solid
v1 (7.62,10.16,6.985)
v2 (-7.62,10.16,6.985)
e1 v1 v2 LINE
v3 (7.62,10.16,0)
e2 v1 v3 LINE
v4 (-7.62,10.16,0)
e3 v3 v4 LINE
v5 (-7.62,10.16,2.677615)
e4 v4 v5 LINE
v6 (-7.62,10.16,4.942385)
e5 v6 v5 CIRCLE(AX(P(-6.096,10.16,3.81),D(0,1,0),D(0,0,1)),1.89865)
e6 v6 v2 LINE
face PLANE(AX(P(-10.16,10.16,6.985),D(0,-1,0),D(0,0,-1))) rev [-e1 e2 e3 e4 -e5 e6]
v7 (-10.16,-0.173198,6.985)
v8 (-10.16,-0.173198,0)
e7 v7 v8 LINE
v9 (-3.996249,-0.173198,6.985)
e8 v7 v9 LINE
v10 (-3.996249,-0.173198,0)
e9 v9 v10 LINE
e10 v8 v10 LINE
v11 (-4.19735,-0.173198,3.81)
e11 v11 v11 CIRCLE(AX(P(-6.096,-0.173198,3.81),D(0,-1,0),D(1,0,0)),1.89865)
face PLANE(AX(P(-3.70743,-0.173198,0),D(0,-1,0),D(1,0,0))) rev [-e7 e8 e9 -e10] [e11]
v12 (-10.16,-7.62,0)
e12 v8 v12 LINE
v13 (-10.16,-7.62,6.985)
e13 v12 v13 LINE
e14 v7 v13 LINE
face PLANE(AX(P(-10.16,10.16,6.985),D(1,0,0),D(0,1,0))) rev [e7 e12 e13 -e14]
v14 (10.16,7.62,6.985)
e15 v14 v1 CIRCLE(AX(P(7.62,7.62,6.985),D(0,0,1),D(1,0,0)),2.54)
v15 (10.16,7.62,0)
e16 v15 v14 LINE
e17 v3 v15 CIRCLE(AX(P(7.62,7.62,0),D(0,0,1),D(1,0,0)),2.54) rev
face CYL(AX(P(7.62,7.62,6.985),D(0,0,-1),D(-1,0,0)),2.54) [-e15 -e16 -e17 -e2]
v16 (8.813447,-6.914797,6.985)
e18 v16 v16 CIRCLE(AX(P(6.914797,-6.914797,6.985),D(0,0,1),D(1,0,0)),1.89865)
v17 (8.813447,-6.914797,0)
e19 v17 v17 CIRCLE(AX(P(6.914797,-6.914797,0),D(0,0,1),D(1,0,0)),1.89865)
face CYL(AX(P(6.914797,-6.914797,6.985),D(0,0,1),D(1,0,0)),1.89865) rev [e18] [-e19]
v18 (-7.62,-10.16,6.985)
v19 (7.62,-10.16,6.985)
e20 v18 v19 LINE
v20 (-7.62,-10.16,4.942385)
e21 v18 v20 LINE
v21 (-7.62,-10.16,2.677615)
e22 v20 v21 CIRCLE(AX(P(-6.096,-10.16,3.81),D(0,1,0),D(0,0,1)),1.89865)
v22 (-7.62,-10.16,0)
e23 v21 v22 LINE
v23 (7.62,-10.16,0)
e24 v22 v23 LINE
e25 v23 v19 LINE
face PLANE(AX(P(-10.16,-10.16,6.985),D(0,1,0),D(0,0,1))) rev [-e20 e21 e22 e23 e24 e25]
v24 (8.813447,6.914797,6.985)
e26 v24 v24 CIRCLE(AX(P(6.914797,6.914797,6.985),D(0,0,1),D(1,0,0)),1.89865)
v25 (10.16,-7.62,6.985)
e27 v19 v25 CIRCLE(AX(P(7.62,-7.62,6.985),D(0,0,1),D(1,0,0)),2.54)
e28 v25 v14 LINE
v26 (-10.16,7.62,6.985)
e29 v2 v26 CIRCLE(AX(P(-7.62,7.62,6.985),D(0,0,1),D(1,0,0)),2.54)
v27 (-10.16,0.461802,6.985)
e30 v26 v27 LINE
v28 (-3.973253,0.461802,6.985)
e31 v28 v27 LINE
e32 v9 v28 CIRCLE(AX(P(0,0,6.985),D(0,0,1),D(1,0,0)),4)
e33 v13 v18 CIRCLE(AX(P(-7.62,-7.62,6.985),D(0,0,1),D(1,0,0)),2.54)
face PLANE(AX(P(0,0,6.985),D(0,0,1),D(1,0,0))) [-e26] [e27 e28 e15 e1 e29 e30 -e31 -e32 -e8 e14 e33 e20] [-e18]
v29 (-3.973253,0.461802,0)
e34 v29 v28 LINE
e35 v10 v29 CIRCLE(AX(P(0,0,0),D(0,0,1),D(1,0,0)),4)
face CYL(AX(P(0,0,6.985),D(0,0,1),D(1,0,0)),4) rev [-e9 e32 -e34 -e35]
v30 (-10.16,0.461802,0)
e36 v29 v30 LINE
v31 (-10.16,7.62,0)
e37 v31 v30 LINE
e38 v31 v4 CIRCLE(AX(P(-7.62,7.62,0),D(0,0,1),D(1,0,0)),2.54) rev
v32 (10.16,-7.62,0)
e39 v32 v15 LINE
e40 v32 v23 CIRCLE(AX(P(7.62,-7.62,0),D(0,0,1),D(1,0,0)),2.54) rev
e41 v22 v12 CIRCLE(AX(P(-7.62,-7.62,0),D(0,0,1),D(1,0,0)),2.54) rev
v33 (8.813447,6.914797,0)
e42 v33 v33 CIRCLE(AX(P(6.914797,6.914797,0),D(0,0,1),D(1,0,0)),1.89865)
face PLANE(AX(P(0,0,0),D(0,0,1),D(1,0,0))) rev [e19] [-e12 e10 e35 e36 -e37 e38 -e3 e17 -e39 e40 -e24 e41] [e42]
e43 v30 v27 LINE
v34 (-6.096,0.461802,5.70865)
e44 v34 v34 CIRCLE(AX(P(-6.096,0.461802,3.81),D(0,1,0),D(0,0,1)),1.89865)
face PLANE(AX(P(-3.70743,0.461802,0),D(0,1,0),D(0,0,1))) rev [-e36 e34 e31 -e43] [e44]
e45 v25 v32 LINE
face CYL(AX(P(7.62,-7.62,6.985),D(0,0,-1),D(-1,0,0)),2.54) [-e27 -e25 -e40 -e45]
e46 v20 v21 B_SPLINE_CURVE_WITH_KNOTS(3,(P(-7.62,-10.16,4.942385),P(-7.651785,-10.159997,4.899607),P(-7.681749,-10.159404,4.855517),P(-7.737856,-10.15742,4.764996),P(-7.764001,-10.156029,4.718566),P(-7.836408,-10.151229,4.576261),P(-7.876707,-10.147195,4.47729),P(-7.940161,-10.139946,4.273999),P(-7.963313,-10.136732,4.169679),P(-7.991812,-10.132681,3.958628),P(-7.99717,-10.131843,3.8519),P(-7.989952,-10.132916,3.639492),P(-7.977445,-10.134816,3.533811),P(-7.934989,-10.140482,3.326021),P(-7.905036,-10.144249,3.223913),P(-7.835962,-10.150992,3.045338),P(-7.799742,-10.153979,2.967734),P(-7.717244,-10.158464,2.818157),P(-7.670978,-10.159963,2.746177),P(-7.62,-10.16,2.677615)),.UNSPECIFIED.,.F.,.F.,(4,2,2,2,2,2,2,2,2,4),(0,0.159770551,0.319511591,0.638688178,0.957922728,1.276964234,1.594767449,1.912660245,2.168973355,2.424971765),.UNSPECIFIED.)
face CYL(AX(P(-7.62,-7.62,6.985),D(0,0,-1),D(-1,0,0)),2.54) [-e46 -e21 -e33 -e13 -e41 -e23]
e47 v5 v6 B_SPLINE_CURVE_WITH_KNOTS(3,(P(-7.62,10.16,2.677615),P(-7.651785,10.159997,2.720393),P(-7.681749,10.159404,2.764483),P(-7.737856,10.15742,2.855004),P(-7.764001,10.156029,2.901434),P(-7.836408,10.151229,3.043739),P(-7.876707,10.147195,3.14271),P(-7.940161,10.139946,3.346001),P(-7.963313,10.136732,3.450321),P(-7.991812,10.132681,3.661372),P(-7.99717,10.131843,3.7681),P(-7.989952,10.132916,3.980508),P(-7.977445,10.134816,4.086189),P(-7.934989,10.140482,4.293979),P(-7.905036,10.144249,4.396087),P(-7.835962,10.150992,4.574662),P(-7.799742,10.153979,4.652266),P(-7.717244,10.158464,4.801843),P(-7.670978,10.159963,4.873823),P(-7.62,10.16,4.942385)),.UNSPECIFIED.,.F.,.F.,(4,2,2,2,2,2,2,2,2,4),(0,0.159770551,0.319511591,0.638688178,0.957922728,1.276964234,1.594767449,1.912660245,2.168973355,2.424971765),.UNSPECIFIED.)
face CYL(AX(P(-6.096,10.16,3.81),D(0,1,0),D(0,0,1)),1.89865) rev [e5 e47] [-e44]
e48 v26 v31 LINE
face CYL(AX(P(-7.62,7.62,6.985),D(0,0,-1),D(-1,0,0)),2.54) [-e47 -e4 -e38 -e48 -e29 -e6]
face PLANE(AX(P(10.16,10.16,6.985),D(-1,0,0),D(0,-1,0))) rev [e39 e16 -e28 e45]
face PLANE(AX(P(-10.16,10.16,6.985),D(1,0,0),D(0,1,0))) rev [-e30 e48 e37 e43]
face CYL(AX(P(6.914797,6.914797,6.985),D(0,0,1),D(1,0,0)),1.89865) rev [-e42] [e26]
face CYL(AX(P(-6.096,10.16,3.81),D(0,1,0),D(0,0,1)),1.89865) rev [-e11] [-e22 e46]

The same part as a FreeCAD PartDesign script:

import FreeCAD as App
import Part
import Sketcher

V = App.Vector
Q = App.Units.Quantity


def edges_at(feature, points):
    """Names of the edges that pass closest to the given points."""
    edges = feature.Shape.Edges
    near = lambda p: min(range(len(edges)), key=lambda i: edges[i].distToShape(Part.Vertex(*p))[0])
    return sorted({f"Edge{near(p) + 1}" for p in points})


def add_polygon(sketch, points):
    """Adds a closed chain of lines whose ends are joined by coincident constraints."""
    first, n = sketch.GeometryCount, len(points)
    for a, b in zip(points, points[1:] + points[:1]):
        sketch.addGeometry(Part.LineSegment(App.Vector(*a, 0), App.Vector(*b, 0)), False)
    for i in range(n):
        sketch.addConstraint(Sketcher.Constraint("Coincident", first + i, 2, first + (i + 1) % n, 1))

doc = App.newDocument("Part")
body = doc.addObject("PartDesign::Body", "Body")

# Sketch on XY plane
sketch1 = body.newObject("Sketcher::SketchObject", "Sketch")
sketch1.AttachmentSupport = (doc.getObject("XY_Plane"), [""])
sketch1.MapMode = "FlatFace"
add_polygon(sketch1, [(-10.16, 10.16), (-10.16, -10.16), (10.16, -10.16), (10.16, 10.16)])  # lines 0-3
sketch1.addConstraint(Sketcher.Constraint("Vertical", 0))
sketch1.addConstraint(Sketcher.Constraint("Horizontal", 1))
sketch1.addConstraint(Sketcher.Constraint("Vertical", 2))
sketch1.addConstraint(Sketcher.Constraint("Horizontal", 3))
sketch1.addConstraint(Sketcher.Constraint("Symmetric", 0, 2, 2, 2, -1, 1))
sketch1.addConstraint(Sketcher.Constraint("Equal", 3, 0))
sketch1.addConstraint(Sketcher.Constraint("DistanceX", 1, 1, 1, 2, Q("0.8 in")))
pad1 = body.newObject("PartDesign::Pad", "Pad")
pad1.Profile = sketch1
pad1.Length = Q("0.275 in")

# Sketch on XY plane
sketch2 = body.newObject("Sketcher::SketchObject", "Sketch001")
sketch2.AttachmentSupport = (doc.getObject("XY_Plane"), [""])
sketch2.MapMode = "FlatFace"
sketch2.AttachmentOffset = App.Placement(V(0, 0, 0.275 * 25.4), App.Rotation())
add_polygon(sketch2, [(-26.56743, 0.461802), (-26.56743, -0.173198), (-3.70743, -0.173198), (-3.70743, 0.461802)])  # lines 0-3
sketch2.addConstraint(Sketcher.Constraint("Vertical", 0))
sketch2.addConstraint(Sketcher.Constraint("Horizontal", 1))
sketch2.addConstraint(Sketcher.Constraint("Vertical", 2))
sketch2.addConstraint(Sketcher.Constraint("Horizontal", 3))
sketch2.addConstraint(Sketcher.Constraint("DistanceX", 1, 1, 1, 2, Q("0.9 in")))
sketch2.addConstraint(Sketcher.Constraint("DistanceY", 0, 2, 0, 1, Q("0.025 in")))
sketch2.addConstraint(Sketcher.Constraint("DistanceX", 0, 2, -1, 1, 26.56743))
sketch2.addConstraint(Sketcher.Constraint("DistanceY", 0, 2, -1, 1, 0.173198))
pocket1 = body.newObject("PartDesign::Pocket", "Pocket")
pocket1.Profile = sketch2
pocket1.Type = "ThroughAll"
pocket1.Midplane = True

# Sketch on XY plane
sketch3 = body.newObject("Sketcher::SketchObject", "Sketch002")
sketch3.AttachmentSupport = (doc.getObject("XY_Plane"), [""])
sketch3.MapMode = "FlatFace"
sketch3.AttachmentOffset = App.Placement(V(0, 0, 0.275 * 25.4), App.Rotation())
sketch3.addGeometry(Part.Circle(V(6.914797, 6.914797, 0), V(0, 0, 1), 1.89865), False)
sketch3.addGeometry(Part.Circle(V(6.914797, -6.914797, 0), V(0, 0, 1), 1.89865), False)
sketch3.addConstraint(Sketcher.Constraint("Equal", 0, 1))
sketch3.addConstraint(Sketcher.Constraint("Symmetric", 0, 3, 1, 3, -1))
sketch3.addConstraint(Sketcher.Constraint("Diameter", 0, Q("0.1495 in")))
sketch3.addConstraint(Sketcher.Constraint("DistanceX", -1, 1, 0, 3, 6.914797))
sketch3.addConstraint(Sketcher.Constraint("DistanceY", -1, 1, 0, 3, 6.914797))
doc.recompute()
hole = body.newObject("PartDesign::Hole", "Hole")
hole.Profile = sketch3
hole.ThreadType = "None"
hole.Diameter = Q("0.1495 in")
hole.DepthType = "Dimension"
hole.Depth = Q("0.275 in")
hole.DrillPoint = "Flat"
doc.recompute()

fillet = body.newObject("PartDesign::Fillet", "Fillet")
fillet.Base = (hole, edges_at(hole, [
    (10.16, -10.16, 3.493),
    (-10.16, -10.16, 3.493),
    (-10.16, 10.16, 3.493),
    (10.16, 10.16, 3.493),
]))
fillet.Radius = Q("0.1 in")

# Sketch on XY plane
sketch4 = body.newObject("Sketcher::SketchObject", "Sketch003")
sketch4.AttachmentSupport = (doc.getObject("XY_Plane"), [""])
sketch4.MapMode = "FlatFace"
sketch4.AttachmentOffset = App.Placement(V(0, 0, 0.275 * 25.4), App.Rotation())
sketch4.addGeometry(Part.Circle(V(0, 0, 0), V(0, 0, 1), 4), False)
sketch4.addConstraint(Sketcher.Constraint("Coincident", 0, 3, -1, 1))
sketch4.addConstraint(Sketcher.Constraint("Diameter", 0, 8.0))
doc.recompute()
hole2 = body.newObject("PartDesign::Hole", "Hole001")
hole2.Profile = sketch4
hole2.ThreadType = "None"
hole2.Diameter = 8
hole2.DepthType = "Dimension"
hole2.Depth = Q("0.275 in")
hole2.DrillPoint = "Flat"

# Sketch on XZ plane
sketch5 = body.newObject("Sketcher::SketchObject", "Sketch004")
sketch5.AttachmentSupport = (doc.getObject("XZ_Plane"), [""])
sketch5.MapMode = "FlatFace"
sketch5.AttachmentOffset = App.Placement(V(0, 0, -0.4 * 25.4), App.Rotation())
sketch5.addGeometry(Part.Circle(V(-6.096, 3.81, 0), V(0, 0, 1), 1.89865), False)
sketch5.addConstraint(Sketcher.Constraint("Diameter", 0, Q("0.1495 in")))
sketch5.addConstraint(Sketcher.Constraint("DistanceX", 0, 3, -1, 1, Q("0.24 in")))
sketch5.addConstraint(Sketcher.Constraint("DistanceY", -1, 1, 0, 3, Q("0.15 in")))
doc.recompute()
hole3 = body.newObject("PartDesign::Hole", "Hole002")
hole3.Profile = sketch5
hole3.ThreadType = "None"
hole3.Diameter = Q("0.1495 in")
hole3.DepthType = "ThroughAll"
hole3.Reversed = True

doc.recompute()
